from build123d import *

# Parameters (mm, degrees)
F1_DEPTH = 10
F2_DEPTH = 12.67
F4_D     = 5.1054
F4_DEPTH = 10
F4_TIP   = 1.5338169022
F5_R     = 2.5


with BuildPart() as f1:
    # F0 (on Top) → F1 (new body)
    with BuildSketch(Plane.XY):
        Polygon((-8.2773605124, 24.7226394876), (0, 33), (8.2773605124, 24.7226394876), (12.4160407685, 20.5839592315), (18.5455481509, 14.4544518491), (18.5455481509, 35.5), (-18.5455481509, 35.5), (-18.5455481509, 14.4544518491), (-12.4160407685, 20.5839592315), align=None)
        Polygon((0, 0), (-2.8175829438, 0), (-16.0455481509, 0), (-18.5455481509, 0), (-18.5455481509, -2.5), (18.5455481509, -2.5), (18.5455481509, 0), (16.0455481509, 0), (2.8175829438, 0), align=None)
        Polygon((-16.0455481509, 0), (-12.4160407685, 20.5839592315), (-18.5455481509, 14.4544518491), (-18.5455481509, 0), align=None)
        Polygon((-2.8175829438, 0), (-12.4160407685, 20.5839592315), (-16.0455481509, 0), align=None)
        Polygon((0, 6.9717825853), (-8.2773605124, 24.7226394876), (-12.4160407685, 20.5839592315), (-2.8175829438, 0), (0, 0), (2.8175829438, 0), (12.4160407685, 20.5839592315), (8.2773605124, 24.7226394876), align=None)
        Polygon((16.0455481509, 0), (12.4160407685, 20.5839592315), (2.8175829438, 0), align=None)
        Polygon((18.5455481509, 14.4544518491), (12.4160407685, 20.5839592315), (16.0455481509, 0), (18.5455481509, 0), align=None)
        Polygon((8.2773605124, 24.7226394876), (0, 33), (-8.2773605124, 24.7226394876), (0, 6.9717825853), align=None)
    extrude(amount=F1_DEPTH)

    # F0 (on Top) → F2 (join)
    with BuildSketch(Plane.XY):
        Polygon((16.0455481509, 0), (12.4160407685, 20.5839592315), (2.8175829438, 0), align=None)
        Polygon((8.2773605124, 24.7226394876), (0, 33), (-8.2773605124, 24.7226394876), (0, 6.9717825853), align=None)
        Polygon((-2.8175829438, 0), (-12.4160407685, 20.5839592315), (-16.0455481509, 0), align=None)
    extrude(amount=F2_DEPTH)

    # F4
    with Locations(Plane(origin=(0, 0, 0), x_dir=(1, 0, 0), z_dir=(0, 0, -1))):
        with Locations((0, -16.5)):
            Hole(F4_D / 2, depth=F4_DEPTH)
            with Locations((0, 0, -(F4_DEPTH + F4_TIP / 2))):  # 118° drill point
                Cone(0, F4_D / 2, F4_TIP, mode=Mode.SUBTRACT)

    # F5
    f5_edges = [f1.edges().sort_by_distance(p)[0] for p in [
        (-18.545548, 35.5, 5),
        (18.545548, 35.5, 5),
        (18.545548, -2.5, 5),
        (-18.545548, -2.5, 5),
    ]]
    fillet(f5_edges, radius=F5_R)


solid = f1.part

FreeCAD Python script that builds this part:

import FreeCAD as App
import Part
import Sketcher
from FreeCAD import Vector
Q = App.Units.Quantity


def edges_at(feature, points):
    """Names of the edges that pass closest to the given points."""
    edges = feature.Shape.Edges
    near = lambda p: min(range(len(edges)), key=lambda i: edges[i].distToShape(Part.Vertex(*p))[0])
    return sorted({f"Edge{near(p) + 1}" for p in points})

doc = App.newDocument("Part")
params = doc.addObject("Spreadsheet::Sheet", "Params")
for row, (alias, value) in enumerate([
    ("sketch1_height", "38 mm"),
    ("pad1_length", "10 mm"),
    ("pad2_length", "12.67 mm"),
    ("hole_diameter", "5.1054 mm"),
    ("hole_depth", "10 mm"),
    ("fillet_radius", "2.5 mm"),
], start=1):
    params.set(f"A{row}", alias)
    params.set(f"B{row}", "=" + value)
    params.setAlias(f"B{row}", alias)

body = doc.addObject("PartDesign::Body", "Body")

# Sketch on XY plane
sketch1 = body.newObject("Sketcher::SketchObject", "Sketch")
sketch1.AttachmentSupport = (doc.getObject("XY_Plane"), [""])
sketch1.MapMode = "FlatFace"
sketch1.addGeometry(Part.LineSegment(Vector(19, 36, 0), Vector(-19, 36, 0)), False)
sketch1.addGeometry(Part.LineSegment(Vector(-19, 36, 0), Vector(-19, -2, 0)), False)
sketch1.addGeometry(Part.LineSegment(Vector(-19, -2, 0), Vector(19, -2, 0)), False)
sketch1.addGeometry(Part.LineSegment(Vector(19, -2, 0), Vector(19, 36, 0)), False)
sketch1.addConstraint(Sketcher.Constraint("Coincident", 0, 2, 1, 1))
sketch1.addConstraint(Sketcher.Constraint("Coincident", 1, 2, 2, 1))
sketch1.addConstraint(Sketcher.Constraint("Coincident", 2, 2, 3, 1))
sketch1.addConstraint(Sketcher.Constraint("Coincident", 3, 2, 0, 1))
sketch1.addConstraint(Sketcher.Constraint("Horizontal", 0))
sketch1.addConstraint(Sketcher.Constraint("Vertical", 1))
sketch1.addConstraint(Sketcher.Constraint("Horizontal", 2))
sketch1.addConstraint(Sketcher.Constraint("Vertical", 3))
sketch1.addConstraint(Sketcher.Constraint("DistanceY", 1, 2, 1, 1, Q("38 mm")))
sketch1.addConstraint(Sketcher.Constraint("DistanceY", -1, 1, 0, 2, Q("35.5 mm")))
sketch1.addConstraint(Sketcher.Constraint("DistanceX", 0, 2, 0, 1, Q("37.091096 mm")))
sketch1.addConstraint(Sketcher.Constraint("DistanceX", 0, 2, -1, 1, Q("18.545548 mm")))
sketch1.setExpression("Constraints[8]", "Params.sketch1_height")
pad1 = body.newObject("PartDesign::Pad", "Pad")
pad1.Profile = sketch1
pad1.setExpression("Length", "Params.pad1_length")

# Sketch on XY plane
sketch2 = body.newObject("Sketcher::SketchObject", "Sketch001")
sketch2.AttachmentSupport = (doc.getObject("XY_Plane"), [""])
sketch2.MapMode = "FlatFace"
sketch2.addGeometry(Part.LineSegment(Vector(16, 0, 0), Vector(12, 21, 0)), False)
sketch2.addGeometry(Part.LineSegment(Vector(12, 21, 0), Vector(3, 0, 0)), False)
sketch2.addGeometry(Part.LineSegment(Vector(3, 0, 0), Vector(16, 0, 0)), False)
sketch2.addGeometry(Part.LineSegment(Vector(8, 25, 0), Vector(0, 33, 0)), False)
sketch2.addGeometry(Part.LineSegment(Vector(0, 33, 0), Vector(-8, 25, 0)), False)
sketch2.addGeometry(Part.LineSegment(Vector(-8, 25, 0), Vector(0, 7, 0)), False)
sketch2.addGeometry(Part.LineSegment(Vector(0, 7, 0), Vector(8, 25, 0)), False)
sketch2.addGeometry(Part.LineSegment(Vector(-3, 0, 0), Vector(-12, 21, 0)), False)
sketch2.addGeometry(Part.LineSegment(Vector(-12, 21, 0), Vector(-16, 0, 0)), False)
sketch2.addGeometry(Part.LineSegment(Vector(-16, 0, 0), Vector(-3, 0, 0)), False)
sketch2.addConstraint(Sketcher.Constraint("Coincident", 0, 2, 1, 1))
sketch2.addConstraint(Sketcher.Constraint("Coincident", 1, 2, 2, 1))
sketch2.addConstraint(Sketcher.Constraint("Coincident", 2, 2, 0, 1))
sketch2.addConstraint(Sketcher.Constraint("Coincident", 3, 2, 4, 1))
sketch2.addConstraint(Sketcher.Constraint("Coincident", 4, 2, 5, 1))
sketch2.addConstraint(Sketcher.Constraint("Coincident", 5, 2, 6, 1))
sketch2.addConstraint(Sketcher.Constraint("Coincident", 6, 2, 3, 1))
sketch2.addConstraint(Sketcher.Constraint("Coincident", 7, 2, 8, 1))
sketch2.addConstraint(Sketcher.Constraint("Coincident", 8, 2, 9, 1))
sketch2.addConstraint(Sketcher.Constraint("Coincident", 9, 2, 7, 1))
sketch2.addConstraint(Sketcher.Constraint("Horizontal", 2))
sketch2.addConstraint(Sketcher.Constraint("Horizontal", 9))
sketch2.addConstraint(Sketcher.Constraint("Symmetric", 2, 2, 8, 2, -1, 1))
sketch2.addConstraint(Sketcher.Constraint("Symmetric", 4, 2, 6, 2, -2))
sketch2.addConstraint(Sketcher.Constraint("Symmetric", 0, 2, 7, 2, -2))
sketch2.addConstraint(Sketcher.Constraint("Symmetric", 1, 2, 9, 2, -2))
sketch2.addConstraint(Sketcher.Constraint("PointOnObject", 3, 2, -2))
sketch2.addConstraint(Sketcher.Constraint("PointOnObject", 5, 2, -2))
sketch2.addConstraint(Sketcher.Constraint("Perpendicular", 3, 4))
sketch2.addConstraint(Sketcher.Constraint("Parallel", 1, 6))
sketch2.addConstraint(Sketcher.Constraint("Angle", 0, Q("100 deg")))
sketch2.addConstraint(Sketcher.Constraint("Angle", 1, Q("-115 deg")))
sketch2.addConstraint(Sketcher.Constraint("DistanceY", -1, 1, 3, 2, Q("33 mm")))
sketch2.addConstraint(Sketcher.Constraint("Distance", 0, Q("20.9015 mm")))
sketch2.addConstraint(Sketcher.Constraint("DistanceX", 4, 2, 0, 2, Q("20.693401 mm")))
sketch2.addConstraint(Sketcher.Constraint("DistanceX", -1, 1, 0, 2, Q("12.416041 mm")))
pad2 = body.newObject("PartDesign::Pad", "Pad001")
pad2.Profile = sketch2
pad2.setExpression("Length", "Params.pad2_length")

# Sketch on XY plane
sketch3 = body.newObject("Sketcher::SketchObject", "Sketch002")
sketch3.AttachmentSupport = (doc.getObject("XY_Plane"), [""])
sketch3.MapMode = "FlatFace"
sketch3.addGeometry(Part.Circle(Vector(0, 16.5, 0), Vector(0, 0, 1), 2.6), False)
sketch3.addConstraint(Sketcher.Constraint("PointOnObject", 0, 3, -2))
sketch3.addConstraint(Sketcher.Constraint("Diameter", 0, Q("5.1054 mm")))
sketch3.addConstraint(Sketcher.Constraint("DistanceY", -1, 1, 0, 3, Q("16.5 mm")))
doc.recompute()
hole = body.newObject("PartDesign::Hole", "Hole")
hole.Profile = sketch3
hole.ThreadType = "None"
hole.setExpression("Diameter", "Params.hole_diameter")
hole.DepthType = "Dimension"
hole.setExpression("Depth", "Params.hole_depth")
hole.DrillPoint = "Angled"
hole.DrillPointAngle = 118
hole.Reversed = True
doc.recompute()

fillet = body.newObject("PartDesign::Fillet", "Fillet")
fillet.Base = (hole, edges_at(hole, [
    (-18.546, 35.5, 5),
    (18.546, 35.5, 5),
    (18.546, -2.5, 5),
    (-18.546, -2.5, 5),
]))
fillet.setExpression("Radius", "Params.fillet_radius")

doc.recompute()
